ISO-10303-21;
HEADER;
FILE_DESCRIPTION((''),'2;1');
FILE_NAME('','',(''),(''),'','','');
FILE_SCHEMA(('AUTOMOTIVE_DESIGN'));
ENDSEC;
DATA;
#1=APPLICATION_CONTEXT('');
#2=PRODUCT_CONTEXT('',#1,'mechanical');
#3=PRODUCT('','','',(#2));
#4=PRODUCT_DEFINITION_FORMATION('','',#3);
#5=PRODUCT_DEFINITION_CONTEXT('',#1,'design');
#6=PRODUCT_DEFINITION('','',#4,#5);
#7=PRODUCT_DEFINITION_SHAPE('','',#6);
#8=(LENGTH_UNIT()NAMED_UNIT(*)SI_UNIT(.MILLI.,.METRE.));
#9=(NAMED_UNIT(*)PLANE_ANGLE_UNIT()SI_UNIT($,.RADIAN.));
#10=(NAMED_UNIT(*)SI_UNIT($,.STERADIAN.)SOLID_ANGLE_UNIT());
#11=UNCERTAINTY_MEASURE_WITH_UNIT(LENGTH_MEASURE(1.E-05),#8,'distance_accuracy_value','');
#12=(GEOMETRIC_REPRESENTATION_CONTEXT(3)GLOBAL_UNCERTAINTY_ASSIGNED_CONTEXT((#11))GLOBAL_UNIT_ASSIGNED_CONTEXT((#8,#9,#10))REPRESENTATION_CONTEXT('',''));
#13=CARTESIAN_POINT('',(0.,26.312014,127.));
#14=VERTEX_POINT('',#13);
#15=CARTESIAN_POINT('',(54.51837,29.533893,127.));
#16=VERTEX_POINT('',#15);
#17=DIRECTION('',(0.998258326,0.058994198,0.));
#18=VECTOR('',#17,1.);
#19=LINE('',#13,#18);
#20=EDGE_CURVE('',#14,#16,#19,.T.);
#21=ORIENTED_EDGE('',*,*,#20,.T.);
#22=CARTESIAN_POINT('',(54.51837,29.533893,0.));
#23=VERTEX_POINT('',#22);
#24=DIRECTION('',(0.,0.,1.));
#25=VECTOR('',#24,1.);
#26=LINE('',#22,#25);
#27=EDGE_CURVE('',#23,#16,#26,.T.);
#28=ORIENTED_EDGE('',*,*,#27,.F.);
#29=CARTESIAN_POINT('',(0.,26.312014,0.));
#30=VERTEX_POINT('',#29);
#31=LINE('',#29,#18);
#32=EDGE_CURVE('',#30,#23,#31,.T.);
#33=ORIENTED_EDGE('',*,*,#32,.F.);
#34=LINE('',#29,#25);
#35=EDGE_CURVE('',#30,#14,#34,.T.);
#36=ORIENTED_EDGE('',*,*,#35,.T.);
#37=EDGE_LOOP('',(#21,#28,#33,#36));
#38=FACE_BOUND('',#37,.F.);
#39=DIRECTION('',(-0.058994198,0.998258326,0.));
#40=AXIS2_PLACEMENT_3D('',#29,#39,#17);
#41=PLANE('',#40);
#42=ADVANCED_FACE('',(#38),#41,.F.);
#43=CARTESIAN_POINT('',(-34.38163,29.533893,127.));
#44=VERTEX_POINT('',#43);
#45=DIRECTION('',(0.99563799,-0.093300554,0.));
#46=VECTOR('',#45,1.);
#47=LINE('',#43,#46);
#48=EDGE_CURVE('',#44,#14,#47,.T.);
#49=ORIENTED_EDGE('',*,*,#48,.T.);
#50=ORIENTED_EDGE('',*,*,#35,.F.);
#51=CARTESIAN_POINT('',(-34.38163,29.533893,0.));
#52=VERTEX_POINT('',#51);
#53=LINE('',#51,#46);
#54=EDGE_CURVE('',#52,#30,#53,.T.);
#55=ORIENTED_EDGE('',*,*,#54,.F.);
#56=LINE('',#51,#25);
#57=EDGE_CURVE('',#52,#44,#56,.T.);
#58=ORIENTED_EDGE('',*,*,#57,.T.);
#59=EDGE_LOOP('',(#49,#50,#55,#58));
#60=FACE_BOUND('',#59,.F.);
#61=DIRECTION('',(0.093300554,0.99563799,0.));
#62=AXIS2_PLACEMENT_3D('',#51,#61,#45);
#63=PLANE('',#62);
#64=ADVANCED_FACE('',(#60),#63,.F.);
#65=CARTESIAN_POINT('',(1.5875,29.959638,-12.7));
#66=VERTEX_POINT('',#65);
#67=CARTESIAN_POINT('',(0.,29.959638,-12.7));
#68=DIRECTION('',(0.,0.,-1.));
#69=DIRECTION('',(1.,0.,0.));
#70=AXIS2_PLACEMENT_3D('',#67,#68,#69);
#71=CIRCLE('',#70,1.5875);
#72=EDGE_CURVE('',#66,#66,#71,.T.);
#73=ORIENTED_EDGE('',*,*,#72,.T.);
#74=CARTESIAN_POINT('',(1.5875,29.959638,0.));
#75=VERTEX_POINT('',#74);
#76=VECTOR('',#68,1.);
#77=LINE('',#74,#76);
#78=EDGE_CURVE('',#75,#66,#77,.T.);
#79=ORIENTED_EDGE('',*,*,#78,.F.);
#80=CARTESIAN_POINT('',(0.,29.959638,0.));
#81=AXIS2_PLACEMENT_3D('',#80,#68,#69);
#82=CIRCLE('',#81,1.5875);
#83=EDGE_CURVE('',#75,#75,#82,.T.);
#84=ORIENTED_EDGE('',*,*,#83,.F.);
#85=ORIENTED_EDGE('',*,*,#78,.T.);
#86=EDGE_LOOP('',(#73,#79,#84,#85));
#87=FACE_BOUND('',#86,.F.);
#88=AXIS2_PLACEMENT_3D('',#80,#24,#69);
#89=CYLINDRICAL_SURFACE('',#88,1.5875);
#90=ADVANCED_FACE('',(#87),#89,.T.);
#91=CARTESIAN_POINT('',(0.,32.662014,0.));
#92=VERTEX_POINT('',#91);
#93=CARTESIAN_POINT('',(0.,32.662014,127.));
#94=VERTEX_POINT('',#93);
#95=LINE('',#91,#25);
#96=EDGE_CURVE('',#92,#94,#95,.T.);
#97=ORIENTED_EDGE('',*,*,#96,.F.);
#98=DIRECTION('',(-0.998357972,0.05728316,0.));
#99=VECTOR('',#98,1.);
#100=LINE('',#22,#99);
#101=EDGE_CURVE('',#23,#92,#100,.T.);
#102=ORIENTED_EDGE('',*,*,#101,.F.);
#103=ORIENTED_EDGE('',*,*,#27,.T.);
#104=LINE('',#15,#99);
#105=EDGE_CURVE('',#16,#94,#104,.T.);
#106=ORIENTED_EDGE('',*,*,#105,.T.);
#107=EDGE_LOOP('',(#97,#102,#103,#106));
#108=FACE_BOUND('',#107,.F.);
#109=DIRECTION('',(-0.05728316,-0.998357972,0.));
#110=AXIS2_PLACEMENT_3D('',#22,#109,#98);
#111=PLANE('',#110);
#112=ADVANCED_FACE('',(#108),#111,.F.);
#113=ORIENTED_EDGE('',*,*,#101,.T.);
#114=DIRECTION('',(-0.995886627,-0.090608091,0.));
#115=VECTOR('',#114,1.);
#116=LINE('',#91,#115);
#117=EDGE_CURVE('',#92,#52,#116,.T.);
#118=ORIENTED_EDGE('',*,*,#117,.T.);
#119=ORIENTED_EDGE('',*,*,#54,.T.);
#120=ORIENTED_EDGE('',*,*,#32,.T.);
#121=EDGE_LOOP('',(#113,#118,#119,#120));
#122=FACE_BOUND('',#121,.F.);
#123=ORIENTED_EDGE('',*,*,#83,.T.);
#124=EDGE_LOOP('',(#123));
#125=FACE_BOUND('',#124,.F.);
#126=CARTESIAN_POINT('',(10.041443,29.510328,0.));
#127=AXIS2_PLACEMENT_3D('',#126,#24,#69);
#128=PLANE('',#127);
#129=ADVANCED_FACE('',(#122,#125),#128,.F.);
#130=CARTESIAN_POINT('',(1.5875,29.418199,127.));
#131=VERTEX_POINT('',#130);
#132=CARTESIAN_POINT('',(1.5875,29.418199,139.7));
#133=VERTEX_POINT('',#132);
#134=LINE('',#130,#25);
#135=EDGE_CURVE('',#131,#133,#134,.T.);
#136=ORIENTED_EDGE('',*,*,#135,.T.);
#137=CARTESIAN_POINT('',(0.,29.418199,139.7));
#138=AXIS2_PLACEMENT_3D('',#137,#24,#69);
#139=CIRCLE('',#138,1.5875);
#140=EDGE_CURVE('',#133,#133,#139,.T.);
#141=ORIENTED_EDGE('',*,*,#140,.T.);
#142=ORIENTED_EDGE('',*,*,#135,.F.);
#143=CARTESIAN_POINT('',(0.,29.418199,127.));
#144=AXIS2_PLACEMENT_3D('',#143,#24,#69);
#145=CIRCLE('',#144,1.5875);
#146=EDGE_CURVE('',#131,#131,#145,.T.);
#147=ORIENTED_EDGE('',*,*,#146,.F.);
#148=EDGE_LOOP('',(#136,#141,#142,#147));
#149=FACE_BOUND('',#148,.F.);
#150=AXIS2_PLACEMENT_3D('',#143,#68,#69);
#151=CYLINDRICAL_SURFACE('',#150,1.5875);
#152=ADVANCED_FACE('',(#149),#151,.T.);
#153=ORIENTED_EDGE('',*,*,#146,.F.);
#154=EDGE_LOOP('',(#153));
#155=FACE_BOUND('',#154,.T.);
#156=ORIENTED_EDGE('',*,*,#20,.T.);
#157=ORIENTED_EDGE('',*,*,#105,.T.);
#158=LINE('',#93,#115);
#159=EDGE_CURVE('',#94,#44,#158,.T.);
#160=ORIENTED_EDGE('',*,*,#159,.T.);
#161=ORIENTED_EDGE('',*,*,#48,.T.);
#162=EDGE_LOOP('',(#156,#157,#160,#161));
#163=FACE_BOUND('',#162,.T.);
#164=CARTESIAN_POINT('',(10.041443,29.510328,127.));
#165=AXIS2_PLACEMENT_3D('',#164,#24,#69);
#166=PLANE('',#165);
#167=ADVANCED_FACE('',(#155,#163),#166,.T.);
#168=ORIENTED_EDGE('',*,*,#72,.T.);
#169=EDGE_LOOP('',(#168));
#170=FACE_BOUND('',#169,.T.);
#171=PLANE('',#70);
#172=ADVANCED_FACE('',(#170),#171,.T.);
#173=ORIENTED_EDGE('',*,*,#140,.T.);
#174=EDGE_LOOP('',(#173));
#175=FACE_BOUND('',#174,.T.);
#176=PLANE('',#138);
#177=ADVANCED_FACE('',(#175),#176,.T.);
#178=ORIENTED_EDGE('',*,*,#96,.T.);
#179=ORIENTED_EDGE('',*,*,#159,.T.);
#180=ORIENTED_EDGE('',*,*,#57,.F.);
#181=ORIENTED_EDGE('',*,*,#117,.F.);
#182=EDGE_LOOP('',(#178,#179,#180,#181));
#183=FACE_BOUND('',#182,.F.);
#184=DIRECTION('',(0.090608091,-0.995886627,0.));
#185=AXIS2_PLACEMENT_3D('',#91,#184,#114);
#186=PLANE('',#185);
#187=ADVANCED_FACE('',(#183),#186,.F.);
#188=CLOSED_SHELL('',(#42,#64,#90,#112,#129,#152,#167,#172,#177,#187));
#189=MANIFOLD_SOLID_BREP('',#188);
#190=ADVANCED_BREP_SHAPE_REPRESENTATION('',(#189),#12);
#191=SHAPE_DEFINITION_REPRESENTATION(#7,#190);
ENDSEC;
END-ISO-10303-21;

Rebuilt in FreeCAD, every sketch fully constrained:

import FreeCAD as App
import Part
import Sketcher

V = App.Vector
Q = App.Units.Quantity


def add_polygon(sketch, points):
    """Adds a closed chain of lines whose ends are joined by coincident constraints."""
    first, n = sketch.GeometryCount, len(points)
    for a, b in zip(points, points[1:] + points[:1]):
        sketch.addGeometry(Part.LineSegment(App.Vector(*a, 0), App.Vector(*b, 0)), False)
    for i in range(n):
        sketch.addConstraint(Sketcher.Constraint("Coincident", first + i, 2, first + (i + 1) % n, 1))

doc = App.newDocument("Part")
params = doc.addObject("Spreadsheet::Sheet", "Params")
for row, (alias, value) in enumerate([
    ("pad1_length", "5 in"),
    ("sketch2_diameter", "0.125 in"),
    ("pad2_length", "0.5 in"),
    ("sketch3_diameter", "0.125 in"),
    ("pad3_length", "0.5 in"),
], start=1):
    params.set(f"A{row}", alias)
    params.set(f"B{row}", "=" + value)
    params.setAlias(f"B{row}", alias)

body = doc.addObject("PartDesign::Body", "Body")

# Sketch on XY plane
sketch1 = doc.addObject("Sketcher::SketchObject", "Sketch")
body.addObject(sketch1)
sketch1.AttachmentSupport = (doc.XY_Plane, [""])
sketch1.MapMode = "FlatFace"
add_polygon(sketch1, [(0, 33), (-34, 30), (0, 26), (55, 30)])  # lines 0-3
sketch1.addConstraint([
    Sketcher.Constraint("PointOnObject", 1, 2, -2),
    Sketcher.Constraint("PointOnObject", 3, 2, -2),
    Sketcher.Constraint("Horizontal", 0, 2, 2, 2),
    Sketcher.Constraint("DistanceX", 0, 2, 2, 2, Q("3.5 in")),
    Sketcher.Constraint("DistanceY", 1, 2, 3, 2, Q("0.25 in")),
    Sketcher.Constraint("Distance", 0, 34.523639),
    Sketcher.Constraint("Distance", 1, 34.53226),
    Sketcher.Constraint("DistanceY", -1, 1, 0, 2, 29.533893),
])
pad1 = doc.addObject("PartDesign::Pad", "Pad")
body.addObject(pad1)
pad1.Profile = sketch1
pad1.setExpression("Length", "Params.pad1_length")

# Sketch on XY plane
sketch2 = doc.addObject("Sketcher::SketchObject", "Sketch001")
body.addObject(sketch2)
sketch2.AttachmentSupport = (doc.XY_Plane, [""])
sketch2.MapMode = "FlatFace"
sketch2.addGeometry(Part.Circle(V(0, 30, 0), V(0, 0, 1), 1.6), False)
sketch2.addConstraint([
    Sketcher.Constraint("PointOnObject", 0, 3, -2),
    Sketcher.Constraint("Diameter", 0, Q("0.125 in")),
    Sketcher.Constraint("DistanceY", -1, 1, 0, 3, 29.959638),
])
sketch2.setExpression("Constraints[1]", "Params.sketch2_diameter")
pad2 = doc.addObject("PartDesign::Pad", "Pad001")
body.addObject(pad2)
pad2.Profile = sketch2
pad2.setExpression("Length", "Params.pad2_length")
pad2.Reversed = True

# Sketch on XY plane
sketch3 = doc.addObject("Sketcher::SketchObject", "Sketch002")
body.addObject(sketch3)
sketch3.AttachmentSupport = (doc.XY_Plane, [""])
sketch3.MapMode = "FlatFace"
sketch3.AttachmentOffset = App.Placement(V(0, 0, 5 * 25.4), App.Rotation())
sketch3.addGeometry(Part.Circle(V(0, 29.4, 0), V(0, 0, 1), 1.6), False)
sketch3.addConstraint([
    Sketcher.Constraint("PointOnObject", 0, 3, -2),
    Sketcher.Constraint("Diameter", 0, Q("0.125 in")),
    Sketcher.Constraint("DistanceY", -1, 1, 0, 3, 29.418199),
])
sketch3.setExpression("Constraints[1]", "Params.sketch3_diameter")
pad3 = doc.addObject("PartDesign::Pad", "Pad002")
body.addObject(pad3)
pad3.Profile = sketch3
pad3.setExpression("Length", "Params.pad3_length")

doc.recompute()
